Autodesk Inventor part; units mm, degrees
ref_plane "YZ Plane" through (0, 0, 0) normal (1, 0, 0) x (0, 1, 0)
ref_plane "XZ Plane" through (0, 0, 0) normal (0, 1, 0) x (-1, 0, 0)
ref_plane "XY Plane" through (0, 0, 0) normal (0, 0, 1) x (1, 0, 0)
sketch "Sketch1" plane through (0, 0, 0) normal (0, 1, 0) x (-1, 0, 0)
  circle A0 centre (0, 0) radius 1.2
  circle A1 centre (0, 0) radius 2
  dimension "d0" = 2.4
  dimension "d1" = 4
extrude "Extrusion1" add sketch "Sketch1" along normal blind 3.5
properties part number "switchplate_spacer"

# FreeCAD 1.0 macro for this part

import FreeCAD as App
import Part
import Sketcher

V = App.Vector
Q = App.Units.Quantity

doc = App.newDocument("Part")
body = doc.addObject("PartDesign::Body", "Body")

sketch1 = body.newObject("Sketcher::SketchObject", "Sketch")
sketch1.AttachmentSupport = (doc.getObject("XZ_Plane"), [""])
sketch1.MapMode = "FlatFace"
sketch1.addGeometry([
    Part.Circle(V(0, 0, 0), V(0, 0, 1), 2),
    Part.Circle(V(0, 0, 0), V(0, 0, 1), 1.2),
], False)
sketch1.addConstraint([
    Sketcher.Constraint("Coincident", 0, 3, -1, 1),
    Sketcher.Constraint("Coincident", 1, 3, -1, 1),
    Sketcher.Constraint("Diameter", 0, Q("4 mm")),
    Sketcher.Constraint("Diameter", 1, Q("2.4 mm")),
])
pad1 = body.newObject("PartDesign::Pad", "Pad")
pad1.Profile = sketch1
pad1.Length = 3.5
pad1.Reversed = True

doc.recompute()
